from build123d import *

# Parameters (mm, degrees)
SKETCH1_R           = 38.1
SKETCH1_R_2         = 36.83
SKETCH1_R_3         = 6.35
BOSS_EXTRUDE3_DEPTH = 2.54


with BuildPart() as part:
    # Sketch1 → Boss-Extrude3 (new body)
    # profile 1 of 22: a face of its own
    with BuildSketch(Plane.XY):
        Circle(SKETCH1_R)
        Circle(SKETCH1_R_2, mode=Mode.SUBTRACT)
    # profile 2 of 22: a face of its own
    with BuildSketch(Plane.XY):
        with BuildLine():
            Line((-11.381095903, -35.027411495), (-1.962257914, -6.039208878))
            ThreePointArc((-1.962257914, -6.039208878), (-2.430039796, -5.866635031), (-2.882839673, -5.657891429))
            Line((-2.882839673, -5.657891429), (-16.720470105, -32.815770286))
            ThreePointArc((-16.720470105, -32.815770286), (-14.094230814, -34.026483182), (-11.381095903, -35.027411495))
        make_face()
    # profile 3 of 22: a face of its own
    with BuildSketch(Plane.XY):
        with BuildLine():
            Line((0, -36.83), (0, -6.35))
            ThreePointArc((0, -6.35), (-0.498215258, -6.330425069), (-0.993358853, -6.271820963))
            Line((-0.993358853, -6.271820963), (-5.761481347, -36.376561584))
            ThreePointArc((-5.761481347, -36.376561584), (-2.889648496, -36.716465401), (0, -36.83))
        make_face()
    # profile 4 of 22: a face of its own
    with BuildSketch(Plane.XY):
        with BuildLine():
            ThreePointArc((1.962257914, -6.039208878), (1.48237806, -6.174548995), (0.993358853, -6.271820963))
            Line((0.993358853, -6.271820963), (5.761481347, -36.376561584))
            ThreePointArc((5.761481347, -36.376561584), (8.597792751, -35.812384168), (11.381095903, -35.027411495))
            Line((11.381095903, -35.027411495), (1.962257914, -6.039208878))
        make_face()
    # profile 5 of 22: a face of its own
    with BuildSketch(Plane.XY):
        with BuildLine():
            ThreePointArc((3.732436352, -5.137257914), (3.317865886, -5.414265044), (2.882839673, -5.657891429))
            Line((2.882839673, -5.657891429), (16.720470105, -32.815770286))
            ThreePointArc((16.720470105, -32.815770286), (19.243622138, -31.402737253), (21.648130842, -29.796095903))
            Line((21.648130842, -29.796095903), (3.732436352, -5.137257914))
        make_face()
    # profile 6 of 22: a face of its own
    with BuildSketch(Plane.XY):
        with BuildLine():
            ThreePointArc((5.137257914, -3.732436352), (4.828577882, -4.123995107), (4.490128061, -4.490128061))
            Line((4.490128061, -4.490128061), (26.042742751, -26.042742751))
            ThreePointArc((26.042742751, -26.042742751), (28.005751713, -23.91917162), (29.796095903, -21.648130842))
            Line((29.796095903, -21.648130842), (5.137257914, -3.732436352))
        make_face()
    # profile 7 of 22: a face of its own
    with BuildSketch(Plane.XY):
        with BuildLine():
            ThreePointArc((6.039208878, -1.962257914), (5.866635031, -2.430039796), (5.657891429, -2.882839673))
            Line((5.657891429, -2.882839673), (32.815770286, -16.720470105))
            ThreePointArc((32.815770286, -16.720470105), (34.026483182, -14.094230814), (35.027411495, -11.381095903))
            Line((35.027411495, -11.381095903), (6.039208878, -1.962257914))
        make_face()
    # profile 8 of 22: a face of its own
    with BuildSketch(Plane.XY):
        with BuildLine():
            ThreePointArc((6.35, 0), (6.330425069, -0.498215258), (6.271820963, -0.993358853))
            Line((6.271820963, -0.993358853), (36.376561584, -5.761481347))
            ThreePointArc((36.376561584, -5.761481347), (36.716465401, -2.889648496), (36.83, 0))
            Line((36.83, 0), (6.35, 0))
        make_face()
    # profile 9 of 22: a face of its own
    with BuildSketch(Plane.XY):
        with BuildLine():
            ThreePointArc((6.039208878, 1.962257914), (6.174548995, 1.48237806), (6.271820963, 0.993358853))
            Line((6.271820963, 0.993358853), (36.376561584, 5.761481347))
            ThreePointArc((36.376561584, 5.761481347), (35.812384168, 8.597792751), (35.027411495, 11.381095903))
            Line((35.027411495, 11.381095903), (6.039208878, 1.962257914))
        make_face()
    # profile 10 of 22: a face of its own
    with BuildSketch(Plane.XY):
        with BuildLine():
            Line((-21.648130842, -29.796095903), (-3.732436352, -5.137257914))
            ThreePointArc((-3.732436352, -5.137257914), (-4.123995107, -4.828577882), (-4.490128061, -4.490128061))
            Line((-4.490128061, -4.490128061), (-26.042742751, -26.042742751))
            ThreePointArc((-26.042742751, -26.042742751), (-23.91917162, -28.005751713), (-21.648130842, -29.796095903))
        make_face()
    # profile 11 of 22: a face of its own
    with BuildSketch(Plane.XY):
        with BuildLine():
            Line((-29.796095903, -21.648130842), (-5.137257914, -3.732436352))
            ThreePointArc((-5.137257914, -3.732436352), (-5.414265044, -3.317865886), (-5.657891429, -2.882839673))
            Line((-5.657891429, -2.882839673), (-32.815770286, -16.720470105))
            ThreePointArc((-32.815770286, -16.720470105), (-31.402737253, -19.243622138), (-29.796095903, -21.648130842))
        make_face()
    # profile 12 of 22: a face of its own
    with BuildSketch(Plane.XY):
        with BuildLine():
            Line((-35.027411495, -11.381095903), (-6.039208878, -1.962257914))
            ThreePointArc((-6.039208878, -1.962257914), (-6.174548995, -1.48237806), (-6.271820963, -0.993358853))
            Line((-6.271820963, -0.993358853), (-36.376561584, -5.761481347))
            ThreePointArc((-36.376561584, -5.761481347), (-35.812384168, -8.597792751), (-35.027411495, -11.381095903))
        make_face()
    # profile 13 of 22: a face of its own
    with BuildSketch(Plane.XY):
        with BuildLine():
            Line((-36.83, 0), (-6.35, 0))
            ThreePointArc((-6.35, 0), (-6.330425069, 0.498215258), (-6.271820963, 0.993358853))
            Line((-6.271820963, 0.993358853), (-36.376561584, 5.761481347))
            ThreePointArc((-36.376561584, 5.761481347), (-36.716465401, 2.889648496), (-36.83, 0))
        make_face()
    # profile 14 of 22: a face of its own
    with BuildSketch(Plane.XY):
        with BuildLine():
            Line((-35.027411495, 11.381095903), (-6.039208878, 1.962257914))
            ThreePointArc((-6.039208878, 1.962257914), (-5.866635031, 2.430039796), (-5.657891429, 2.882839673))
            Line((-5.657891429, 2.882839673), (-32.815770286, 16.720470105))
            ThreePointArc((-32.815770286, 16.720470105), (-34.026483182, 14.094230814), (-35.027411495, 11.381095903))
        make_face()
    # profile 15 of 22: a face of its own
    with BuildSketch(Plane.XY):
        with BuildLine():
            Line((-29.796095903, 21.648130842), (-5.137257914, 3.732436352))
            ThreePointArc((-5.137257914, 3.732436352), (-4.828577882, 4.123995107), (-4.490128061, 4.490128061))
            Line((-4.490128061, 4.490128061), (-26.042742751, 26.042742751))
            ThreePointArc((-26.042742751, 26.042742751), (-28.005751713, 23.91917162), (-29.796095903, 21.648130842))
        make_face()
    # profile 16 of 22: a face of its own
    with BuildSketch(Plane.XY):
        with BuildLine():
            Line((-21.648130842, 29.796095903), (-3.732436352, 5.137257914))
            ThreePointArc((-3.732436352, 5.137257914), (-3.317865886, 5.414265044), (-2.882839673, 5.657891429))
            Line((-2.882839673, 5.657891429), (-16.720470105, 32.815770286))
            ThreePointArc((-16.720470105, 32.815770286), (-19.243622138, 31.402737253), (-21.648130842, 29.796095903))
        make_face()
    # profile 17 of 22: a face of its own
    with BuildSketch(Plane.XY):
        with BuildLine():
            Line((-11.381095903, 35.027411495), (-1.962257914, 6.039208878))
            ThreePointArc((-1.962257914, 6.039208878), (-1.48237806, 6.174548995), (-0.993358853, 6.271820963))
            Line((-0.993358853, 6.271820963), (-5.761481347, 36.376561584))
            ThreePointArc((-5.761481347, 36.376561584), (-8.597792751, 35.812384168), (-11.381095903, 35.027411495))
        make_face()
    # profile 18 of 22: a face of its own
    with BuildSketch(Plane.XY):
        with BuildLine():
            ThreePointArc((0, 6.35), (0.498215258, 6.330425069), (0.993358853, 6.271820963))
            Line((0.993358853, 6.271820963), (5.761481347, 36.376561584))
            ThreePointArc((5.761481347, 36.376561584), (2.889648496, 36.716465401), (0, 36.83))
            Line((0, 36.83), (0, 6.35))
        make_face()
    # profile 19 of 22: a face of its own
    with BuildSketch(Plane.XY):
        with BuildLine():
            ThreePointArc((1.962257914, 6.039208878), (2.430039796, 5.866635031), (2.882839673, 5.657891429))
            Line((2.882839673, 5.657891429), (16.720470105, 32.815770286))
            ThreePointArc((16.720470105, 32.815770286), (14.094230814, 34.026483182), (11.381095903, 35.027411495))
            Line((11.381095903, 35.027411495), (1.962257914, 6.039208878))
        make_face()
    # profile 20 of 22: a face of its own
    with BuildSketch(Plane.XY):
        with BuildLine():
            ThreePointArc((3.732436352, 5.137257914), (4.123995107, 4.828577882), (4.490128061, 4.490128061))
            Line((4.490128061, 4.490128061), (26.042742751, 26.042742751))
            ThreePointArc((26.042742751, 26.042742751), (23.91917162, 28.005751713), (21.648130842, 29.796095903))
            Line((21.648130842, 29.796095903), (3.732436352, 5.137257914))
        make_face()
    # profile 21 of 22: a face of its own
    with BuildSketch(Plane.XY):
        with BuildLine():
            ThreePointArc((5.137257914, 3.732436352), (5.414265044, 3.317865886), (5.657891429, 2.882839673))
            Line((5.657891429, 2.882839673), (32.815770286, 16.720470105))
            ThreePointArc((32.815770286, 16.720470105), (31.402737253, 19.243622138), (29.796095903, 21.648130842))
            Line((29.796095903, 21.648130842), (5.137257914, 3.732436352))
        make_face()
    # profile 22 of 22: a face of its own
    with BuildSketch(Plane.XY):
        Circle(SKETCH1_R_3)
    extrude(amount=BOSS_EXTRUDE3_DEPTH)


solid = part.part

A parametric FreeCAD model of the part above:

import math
import FreeCAD as App
import Part
import Sketcher

V = App.Vector
Q = App.Units.Quantity

doc = App.newDocument("Part")
body = doc.addObject("PartDesign::Body", "Body")

# Sketch on XY plane
sketch1 = body.newObject("Sketcher::SketchObject", "Sketch")
sketch1.AttachmentSupport = (doc.getObject("XY_Plane"), [""])
sketch1.MapMode = "FlatFace"
sketch1.addGeometry([
    Part.Circle(V(0, 0, 0), V(0, 0, 1), 38.1),  # 0
    Part.ArcOfCircle(Part.Circle(V(0, 0, 0), V(0, 0, 1), 36.8), math.radians(0), math.radians(9)),  # 1
    Part.LineSegment(V(36.8, 0, 0), V(6.3, 0, 0)),  # 2
    Part.ArcOfCircle(Part.Circle(V(0, 0, 0), V(0, 0, 1), 6.3), math.radians(0), math.radians(9)),  # 3
    Part.LineSegment(V(6.3, 1, 0), V(36.4, 5.8, 0)),  # 4
    Part.ArcOfCircle(Part.Circle(V(0, 0, 0), V(0, 0, 1), 36.8), math.radians(18), math.radians(27)),  # 5
    Part.LineSegment(V(35, 11.4, 0), V(6, 2, 0)),  # 6
    Part.ArcOfCircle(Part.Circle(V(0, 0, 0), V(0, 0, 1), 6.3), math.radians(18), math.radians(27)),  # 7
    Part.LineSegment(V(5.7, 2.9, 0), V(32.8, 16.7, 0)),  # 8
    Part.ArcOfCircle(Part.Circle(V(0, 0, 0), V(0, 0, 1), 36.8), math.radians(36), math.radians(45)),  # 9
    Part.LineSegment(V(29.8, 21.6, 0), V(5.1, 3.7, 0)),  # 10
    Part.ArcOfCircle(Part.Circle(V(0, 0, 0), V(0, 0, 1), 6.3), math.radians(36), math.radians(45)),  # 11
    Part.LineSegment(V(4.5, 4.5, 0), V(26, 26, 0)),  # 12
    Part.ArcOfCircle(Part.Circle(V(0, 0, 0), V(0, 0, 1), 36.8), math.radians(54), math.radians(63)),  # 13
    Part.LineSegment(V(21.6, 29.8, 0), V(3.7, 5.1, 0)),  # 14
    Part.ArcOfCircle(Part.Circle(V(0, 0, 0), V(0, 0, 1), 6.3), math.radians(54), math.radians(63)),  # 15
    Part.LineSegment(V(2.9, 5.7, 0), V(16.7, 32.8, 0)),  # 16
    Part.ArcOfCircle(Part.Circle(V(0, 0, 0), V(0, 0, 1), 36.8), math.radians(72), math.radians(81)),  # 17
    Part.LineSegment(V(11.4, 35, 0), V(2, 6, 0)),  # 18
    Part.ArcOfCircle(Part.Circle(V(0, 0, 0), V(0, 0, 1), 6.3), math.radians(72), math.radians(81)),  # 19
    Part.LineSegment(V(1, 6.3, 0), V(5.8, 36.4, 0)),  # 20
    Part.ArcOfCircle(Part.Circle(V(0, 0, 0), V(0, 0, 1), 36.8), math.radians(90), math.radians(99)),  # 21
    Part.LineSegment(V(0, 36.8, 0), V(0, 6.3, 0)),  # 22
    Part.ArcOfCircle(Part.Circle(V(0, 0, 0), V(0, 0, 1), 6.3), math.radians(90), math.radians(99)),  # 23
    Part.LineSegment(V(-1, 6.3, 0), V(-5.8, 36.4, 0)),  # 24
    Part.ArcOfCircle(Part.Circle(V(0, 0, 0), V(0, 0, 1), 36.8), math.radians(108), math.radians(117)),  # 25
    Part.LineSegment(V(-11.4, 35, 0), V(-2, 6, 0)),  # 26
    Part.ArcOfCircle(Part.Circle(V(0, 0, 0), V(0, 0, 1), 6.3), math.radians(108), math.radians(117)),  # 27
    Part.LineSegment(V(-2.9, 5.7, 0), V(-16.7, 32.8, 0)),  # 28
    Part.ArcOfCircle(Part.Circle(V(0, 0, 0), V(0, 0, 1), 36.8), math.radians(126), math.radians(135)),  # 29
    Part.LineSegment(V(-21.6, 29.8, 0), V(-3.7, 5.1, 0)),  # 30
    Part.ArcOfCircle(Part.Circle(V(0, 0, 0), V(0, 0, 1), 6.3), math.radians(126), math.radians(135)),  # 31
    Part.LineSegment(V(-4.5, 4.5, 0), V(-26, 26, 0)),  # 32
    Part.ArcOfCircle(Part.Circle(V(0, 0, 0), V(0, 0, 1), 36.8), math.radians(144), math.radians(153)),  # 33
    Part.LineSegment(V(-29.8, 21.6, 0), V(-5.1, 3.7, 0)),  # 34
    Part.ArcOfCircle(Part.Circle(V(0, 0, 0), V(0, 0, 1), 6.3), math.radians(144), math.radians(153)),  # 35
    Part.LineSegment(V(-5.7, 2.9, 0), V(-32.8, 16.7, 0)),  # 36
    Part.ArcOfCircle(Part.Circle(V(0, 0, 0), V(0, 0, 1), 36.8), math.radians(162), math.radians(171)),  # 37
    Part.LineSegment(V(-35, 11.4, 0), V(-6, 2, 0)),  # 38
    Part.ArcOfCircle(Part.Circle(V(0, 0, 0), V(0, 0, 1), 6.3), math.radians(162), math.radians(171)),  # 39
    Part.LineSegment(V(-6.3, 1, 0), V(-36.4, 5.8, 0)),  # 40
    Part.ArcOfCircle(Part.Circle(V(0, 0, 0), V(0, 0, 1), 36.8), math.radians(180), math.radians(189)),  # 41
    Part.LineSegment(V(-36.8, 0, 0), V(-6.3, 0, 0)),  # 42
    Part.ArcOfCircle(Part.Circle(V(0, 0, 0), V(0, 0, 1), 6.3), math.radians(180), math.radians(189)),  # 43
    Part.LineSegment(V(-6.3, -1, 0), V(-36.4, -5.8, 0)),  # 44
    Part.ArcOfCircle(Part.Circle(V(0, 0, 0), V(0, 0, 1), 36.8), math.radians(-162), math.radians(-153)),  # 45
    Part.LineSegment(V(-35, -11.4, 0), V(-6, -2, 0)),  # 46
    Part.ArcOfCircle(Part.Circle(V(0, 0, 0), V(0, 0, 1), 6.3), math.radians(-162), math.radians(-153)),  # 47
    Part.LineSegment(V(-5.7, -2.9, 0), V(-32.8, -16.7, 0)),  # 48
    Part.ArcOfCircle(Part.Circle(V(0, 0, 0), V(0, 0, 1), 36.8), math.radians(-144), math.radians(-135)),  # 49
    Part.LineSegment(V(-29.8, -21.6, 0), V(-5.1, -3.7, 0)),  # 50
    Part.ArcOfCircle(Part.Circle(V(0, 0, 0), V(0, 0, 1), 6.3), math.radians(-144), math.radians(-135)),  # 51
    Part.LineSegment(V(-4.5, -4.5, 0), V(-26, -26, 0)),  # 52
    Part.ArcOfCircle(Part.Circle(V(0, 0, 0), V(0, 0, 1), 36.8), math.radians(-126), math.radians(-117)),  # 53
    Part.LineSegment(V(-21.6, -29.8, 0), V(-3.7, -5.1, 0)),  # 54
    Part.ArcOfCircle(Part.Circle(V(0, 0, 0), V(0, 0, 1), 6.3), math.radians(-126), math.radians(-117)),  # 55
    Part.LineSegment(V(-2.9, -5.7, 0), V(-16.7, -32.8, 0)),  # 56
    Part.ArcOfCircle(Part.Circle(V(0, 0, 0), V(0, 0, 1), 36.8), math.radians(-108), math.radians(-99)),  # 57
    Part.LineSegment(V(-11.4, -35, 0), V(-2, -6, 0)),  # 58
    Part.ArcOfCircle(Part.Circle(V(0, 0, 0), V(0, 0, 1), 6.3), math.radians(-108), math.radians(-99)),  # 59
    Part.LineSegment(V(-1, -6.3, 0), V(-5.8, -36.4, 0)),  # 60
    Part.ArcOfCircle(Part.Circle(V(0, 0, 0), V(0, 0, 1), 36.8), math.radians(-90), math.radians(-81)),  # 61
    Part.LineSegment(V(0, -36.8, 0), V(0, -6.3, 0)),  # 62
    Part.ArcOfCircle(Part.Circle(V(0, 0, 0), V(0, 0, 1), 6.3), math.radians(-90), math.radians(-81)),  # 63
    Part.LineSegment(V(1, -6.3, 0), V(5.8, -36.4, 0)),  # 64
    Part.ArcOfCircle(Part.Circle(V(0, 0, 0), V(0, 0, 1), 36.8), math.radians(-72), math.radians(-63)),  # 65
    Part.LineSegment(V(11.4, -35, 0), V(2, -6, 0)),  # 66
    Part.ArcOfCircle(Part.Circle(V(0, 0, 0), V(0, 0, 1), 6.3), math.radians(-72), math.radians(-63)),  # 67
    Part.LineSegment(V(2.9, -5.7, 0), V(16.7, -32.8, 0)),  # 68
    Part.ArcOfCircle(Part.Circle(V(0, 0, 0), V(0, 0, 1), 36.8), math.radians(-54), math.radians(-45)),  # 69
    Part.LineSegment(V(21.6, -29.8, 0), V(3.7, -5.1, 0)),  # 70
    Part.ArcOfCircle(Part.Circle(V(0, 0, 0), V(0, 0, 1), 6.3), math.radians(-54), math.radians(-45)),  # 71
    Part.LineSegment(V(4.5, -4.5, 0), V(26, -26, 0)),  # 72
    Part.ArcOfCircle(Part.Circle(V(0, 0, 0), V(0, 0, 1), 36.8), math.radians(-36), math.radians(-27)),  # 73
    Part.LineSegment(V(29.8, -21.6, 0), V(5.1, -3.7, 0)),  # 74
    Part.ArcOfCircle(Part.Circle(V(0, 0, 0), V(0, 0, 1), 6.3), math.radians(-36), math.radians(-27)),  # 75
    Part.LineSegment(V(5.7, -2.9, 0), V(32.8, -16.7, 0)),  # 76
    Part.ArcOfCircle(Part.Circle(V(0, 0, 0), V(0, 0, 1), 36.8), math.radians(-18), math.radians(-9)),  # 77
    Part.LineSegment(V(35, -11.4, 0), V(6, -2, 0)),  # 78
    Part.ArcOfCircle(Part.Circle(V(0, 0, 0), V(0, 0, 1), 6.3), math.radians(-18), math.radians(-9)),  # 79
    Part.LineSegment(V(6.3, -1, 0), V(36.4, -5.8, 0)),  # 80
], False)
sketch1.addConstraint([
    Sketcher.Constraint("Coincident", 1, 1, 2, 1),
    Sketcher.Constraint("Coincident", 2, 2, 3, 1),
    Sketcher.Constraint("Coincident", 3, 2, 4, 1),
    Sketcher.Constraint("Coincident", 4, 2, 1, 2),
    Sketcher.Constraint("Coincident", 5, 1, 6, 1),
    Sketcher.Constraint("Coincident", 6, 2, 7, 1),
    Sketcher.Constraint("Coincident", 7, 2, 8, 1),
    Sketcher.Constraint("Coincident", 8, 2, 5, 2),
    Sketcher.Constraint("Coincident", 9, 1, 10, 1),
    Sketcher.Constraint("Coincident", 10, 2, 11, 1),
    Sketcher.Constraint("Coincident", 11, 2, 12, 1),
    Sketcher.Constraint("Coincident", 12, 2, 9, 2),
    Sketcher.Constraint("Coincident", 13, 1, 14, 1),
    Sketcher.Constraint("Coincident", 14, 2, 15, 1),
    Sketcher.Constraint("Coincident", 15, 2, 16, 1),
    Sketcher.Constraint("Coincident", 16, 2, 13, 2),
    Sketcher.Constraint("Coincident", 17, 1, 18, 1),
    Sketcher.Constraint("Coincident", 18, 2, 19, 1),
    Sketcher.Constraint("Coincident", 19, 2, 20, 1),
    Sketcher.Constraint("Coincident", 20, 2, 17, 2),
    Sketcher.Constraint("Coincident", 21, 1, 22, 1),
    Sketcher.Constraint("Coincident", 22, 2, 23, 1),
    Sketcher.Constraint("Coincident", 23, 2, 24, 1),
    Sketcher.Constraint("Coincident", 24, 2, 21, 2),
    Sketcher.Constraint("Coincident", 25, 1, 26, 1),
    Sketcher.Constraint("Coincident", 26, 2, 27, 1),
    Sketcher.Constraint("Coincident", 27, 2, 28, 1),
    Sketcher.Constraint("Coincident", 28, 2, 25, 2),
    Sketcher.Constraint("Coincident", 29, 1, 30, 1),
    Sketcher.Constraint("Coincident", 30, 2, 31, 1),
    Sketcher.Constraint("Coincident", 31, 2, 32, 1),
    Sketcher.Constraint("Coincident", 32, 2, 29, 2),
    Sketcher.Constraint("Coincident", 33, 1, 34, 1),
    Sketcher.Constraint("Coincident", 34, 2, 35, 1),
    Sketcher.Constraint("Coincident", 35, 2, 36, 1),
    Sketcher.Constraint("Coincident", 36, 2, 33, 2),
    Sketcher.Constraint("Coincident", 37, 1, 38, 1),
    Sketcher.Constraint("Coincident", 38, 2, 39, 1),
    Sketcher.Constraint("Coincident", 39, 2, 40, 1),
    Sketcher.Constraint("Coincident", 40, 2, 37, 2),
    Sketcher.Constraint("Coincident", 41, 1, 42, 1),
    Sketcher.Constraint("Coincident", 42, 2, 43, 1),
    Sketcher.Constraint("Coincident", 43, 2, 44, 1),
    Sketcher.Constraint("Coincident", 44, 2, 41, 2),
    Sketcher.Constraint("Coincident", 45, 1, 46, 1),
    Sketcher.Constraint("Coincident", 46, 2, 47, 1),
    Sketcher.Constraint("Coincident", 47, 2, 48, 1),
    Sketcher.Constraint("Coincident", 48, 2, 45, 2),
    Sketcher.Constraint("Coincident", 49, 1, 50, 1),
    Sketcher.Constraint("Coincident", 50, 2, 51, 1),
    Sketcher.Constraint("Coincident", 51, 2, 52, 1),
    Sketcher.Constraint("Coincident", 52, 2, 49, 2),
    Sketcher.Constraint("Coincident", 53, 1, 54, 1),
    Sketcher.Constraint("Coincident", 54, 2, 55, 1),
    Sketcher.Constraint("Coincident", 55, 2, 56, 1),
    Sketcher.Constraint("Coincident", 56, 2, 53, 2),
    Sketcher.Constraint("Coincident", 57, 1, 58, 1),
    Sketcher.Constraint("Coincident", 58, 2, 59, 1),
    Sketcher.Constraint("Coincident", 59, 2, 60, 1),
    Sketcher.Constraint("Coincident", 60, 2, 57, 2),
    Sketcher.Constraint("Coincident", 61, 1, 62, 1),
    Sketcher.Constraint("Coincident", 62, 2, 63, 1),
    Sketcher.Constraint("Coincident", 63, 2, 64, 1),
    Sketcher.Constraint("Coincident", 64, 2, 61, 2),
    Sketcher.Constraint("Coincident", 65, 1, 66, 1),
    Sketcher.Constraint("Coincident", 66, 2, 67, 1),
    Sketcher.Constraint("Coincident", 67, 2, 68, 1),
    Sketcher.Constraint("Coincident", 68, 2, 65, 2),
    Sketcher.Constraint("Coincident", 69, 1, 70, 1),
    Sketcher.Constraint("Coincident", 70, 2, 71, 1),
    Sketcher.Constraint("Coincident", 71, 2, 72, 1),
    Sketcher.Constraint("Coincident", 72, 2, 69, 2),
    Sketcher.Constraint("Coincident", 73, 1, 74, 1),
    Sketcher.Constraint("Coincident", 74, 2, 75, 1),
    Sketcher.Constraint("Coincident", 75, 2, 76, 1),
    Sketcher.Constraint("Coincident", 76, 2, 73, 2),
    Sketcher.Constraint("Coincident", 77, 1, 78, 1),
    Sketcher.Constraint("Coincident", 78, 2, 79, 1),
    Sketcher.Constraint("Coincident", 79, 2, 80, 1),
    Sketcher.Constraint("Coincident", 80, 2, 77, 2),
    Sketcher.Constraint("Horizontal", 2),
    Sketcher.Constraint("Vertical", 22),
    Sketcher.Constraint("Horizontal", 42),
    Sketcher.Constraint("Vertical", 62),
    Sketcher.Constraint("Coincident", 0, 3, -1, 1),
    Sketcher.Constraint("Coincident", 1, 3, -1, 1),
    Sketcher.Constraint("Coincident", 3, 3, -1, 1),
    Sketcher.Constraint("Coincident", 5, 3, -1, 1),
    Sketcher.Constraint("Coincident", 7, 3, -1, 1),
    Sketcher.Constraint("Coincident", 9, 3, -1, 1),
    Sketcher.Constraint("Coincident", 11, 3, -1, 1),
    Sketcher.Constraint("Coincident", 13, 3, -1, 1),
    Sketcher.Constraint("Coincident", 15, 3, -1, 1),
    Sketcher.Constraint("Coincident", 17, 3, -1, 1),
    Sketcher.Constraint("Coincident", 19, 3, -1, 1),
    Sketcher.Constraint("Coincident", 21, 3, -1, 1),
    Sketcher.Constraint("Coincident", 23, 3, -1, 1),
    Sketcher.Constraint("Coincident", 25, 3, -1, 1),
    Sketcher.Constraint("Coincident", 27, 3, -1, 1),
    Sketcher.Constraint("Coincident", 29, 3, -1, 1),
    Sketcher.Constraint("Coincident", 31, 3, -1, 1),
    Sketcher.Constraint("Coincident", 33, 3, -1, 1),
    Sketcher.Constraint("Coincident", 35, 3, -1, 1),
    Sketcher.Constraint("Coincident", 37, 3, -1, 1),
    Sketcher.Constraint("Coincident", 39, 3, -1, 1),
    Sketcher.Constraint("Coincident", 41, 3, -1, 1),
    Sketcher.Constraint("Coincident", 43, 3, -1, 1),
    Sketcher.Constraint("Coincident", 45, 3, -1, 1),
    Sketcher.Constraint("Coincident", 47, 3, -1, 1),
    Sketcher.Constraint("Coincident", 49, 3, -1, 1),
    Sketcher.Constraint("Coincident", 51, 3, -1, 1),
    Sketcher.Constraint("Coincident", 53, 3, -1, 1),
    Sketcher.Constraint("Coincident", 55, 3, -1, 1),
    Sketcher.Constraint("Coincident", 57, 3, -1, 1),
    Sketcher.Constraint("Coincident", 59, 3, -1, 1),
    Sketcher.Constraint("Coincident", 61, 3, -1, 1),
    Sketcher.Constraint("Coincident", 63, 3, -1, 1),
    Sketcher.Constraint("Coincident", 65, 3, -1, 1),
    Sketcher.Constraint("Coincident", 67, 3, -1, 1),
    Sketcher.Constraint("Coincident", 69, 3, -1, 1),
    Sketcher.Constraint("Coincident", 71, 3, -1, 1),
    Sketcher.Constraint("Coincident", 73, 3, -1, 1),
    Sketcher.Constraint("Coincident", 75, 3, -1, 1),
    Sketcher.Constraint("Coincident", 77, 3, -1, 1),
    Sketcher.Constraint("Coincident", 79, 3, -1, 1),
    Sketcher.Constraint("Equal", 1, 5),
    Sketcher.Constraint("Equal", 3, 7),
    Sketcher.Constraint("Equal", 5, 9),
    Sketcher.Constraint("Equal", 7, 11),
    Sketcher.Constraint("Equal", 9, 13),
    Sketcher.Constraint("Equal", 11, 15),
    Sketcher.Constraint("Equal", 13, 17),
    Sketcher.Constraint("Equal", 15, 19),
    Sketcher.Constraint("Equal", 17, 21),
    Sketcher.Constraint("Equal", 19, 23),
    Sketcher.Constraint("Equal", 21, 25),
    Sketcher.Constraint("Equal", 23, 27),
    Sketcher.Constraint("Equal", 25, 29),
    Sketcher.Constraint("Equal", 27, 31),
    Sketcher.Constraint("Equal", 29, 33),
    Sketcher.Constraint("Equal", 31, 35),
    Sketcher.Constraint("Equal", 33, 37),
    Sketcher.Constraint("Equal", 35, 39),
    Sketcher.Constraint("Equal", 37, 41),
    Sketcher.Constraint("Equal", 39, 43),
    Sketcher.Constraint("Equal", 41, 45),
    Sketcher.Constraint("Equal", 43, 47),
    Sketcher.Constraint("Equal", 45, 49),
    Sketcher.Constraint("Equal", 47, 51),
    Sketcher.Constraint("Equal", 49, 53),
    Sketcher.Constraint("Equal", 51, 55),
    Sketcher.Constraint("Equal", 53, 57),
    Sketcher.Constraint("Equal", 55, 59),
    Sketcher.Constraint("Equal", 57, 61),
    Sketcher.Constraint("Equal", 59, 63),
    Sketcher.Constraint("Equal", 61, 65),
    Sketcher.Constraint("Equal", 63, 67),
    Sketcher.Constraint("Equal", 65, 69),
    Sketcher.Constraint("Equal", 67, 71),
    Sketcher.Constraint("Equal", 69, 73),
    Sketcher.Constraint("Equal", 71, 75),
    Sketcher.Constraint("Equal", 73, 77),
    Sketcher.Constraint("Equal", 75, 79),
    Sketcher.Constraint("PointOnObject", 1, 1, -1),
    Sketcher.Constraint("PointOnObject", 21, 1, -2),
    Sketcher.Constraint("PointOnObject", 41, 1, -1),
    Sketcher.Constraint("PointOnObject", 61, 1, -2),
    Sketcher.Constraint("Perpendicular", 4, 24),
    Sketcher.Constraint("Perpendicular", 6, 26),
    Sketcher.Constraint("Perpendicular", 8, 28),
    Sketcher.Constraint("Perpendicular", 10, 30),
    Sketcher.Constraint("Perpendicular", 12, 32),
    Sketcher.Constraint("Perpendicular", 14, 34),
    Sketcher.Constraint("Perpendicular", 16, 36),
    Sketcher.Constraint("Perpendicular", 18, 38),
    Sketcher.Constraint("Perpendicular", 20, 40),
    Sketcher.Constraint("Perpendicular", 24, 44),
    Sketcher.Constraint("Perpendicular", 26, 46),
    Sketcher.Constraint("Perpendicular", 28, 48),
    Sketcher.Constraint("Perpendicular", 30, 50),
    Sketcher.Constraint("Perpendicular", 32, 52),
    Sketcher.Constraint("Perpendicular", 34, 54),
    Sketcher.Constraint("Perpendicular", 36, 56),
    Sketcher.Constraint("Perpendicular", 38, 58),
    Sketcher.Constraint("Perpendicular", 40, 60),
    Sketcher.Constraint("Perpendicular", 44, 64),
    Sketcher.Constraint("Perpendicular", 46, 66),
    Sketcher.Constraint("Perpendicular", 48, 68),
    Sketcher.Constraint("Perpendicular", 50, 70),
    Sketcher.Constraint("Perpendicular", 52, 72),
    Sketcher.Constraint("Perpendicular", 54, 74),
    Sketcher.Constraint("Perpendicular", 56, 76),
    Sketcher.Constraint("Perpendicular", 58, 78),
    Sketcher.Constraint("Perpendicular", 60, 80),
    Sketcher.Constraint("Horizontal", 19, 2, 23, 2),
    Sketcher.Constraint("Horizontal", 20, 2, 24, 2),
    Sketcher.Constraint("Horizontal", 17, 1, 25, 1),
    Sketcher.Constraint("Horizontal", 18, 2, 26, 2),
    Sketcher.Constraint("Horizontal", 15, 2, 27, 2),
    Sketcher.Constraint("Horizontal", 16, 2, 28, 2),
    Sketcher.Constraint("Horizontal", 13, 1, 29, 1),
    Sketcher.Constraint("Horizontal", 14, 2, 30, 2),
    Sketcher.Constraint("Horizontal", 11, 2, 31, 2),
    Sketcher.Constraint("Horizontal", 12, 2, 32, 2),
    Sketcher.Constraint("Horizontal", 9, 1, 33, 1),
    Sketcher.Constraint("Horizontal", 7, 2, 35, 2),
    Sketcher.Constraint("Horizontal", 5, 1, 37, 1),
    Sketcher.Constraint("Horizontal", 3, 2, 39, 2),
    Sketcher.Constraint("Horizontal", 59, 2, 63, 2),
    Sketcher.Constraint("Horizontal", 57, 1, 65, 1),
    Sketcher.Constraint("Horizontal", 55, 2, 67, 2),
    Sketcher.Constraint("Horizontal", 53, 1, 69, 1),
    Sketcher.Constraint("Horizontal", 51, 2, 71, 2),
    Sketcher.Constraint("Horizontal", 49, 1, 73, 1),
    Sketcher.Constraint("Horizontal", 47, 2, 75, 2),
    Sketcher.Constraint("Horizontal", 45, 1, 77, 1),
    Sketcher.Constraint("Horizontal", 43, 2, 79, 2),
    Sketcher.Constraint("Vertical", 39, 2, 43, 2),
    Sketcher.Constraint("Vertical", 37, 1, 45, 1),
    Sketcher.Constraint("Vertical", 35, 2, 47, 2),
    Sketcher.Constraint("Vertical", 33, 1, 49, 1),
    Sketcher.Constraint("Vertical", 31, 2, 51, 2),
    Sketcher.Constraint("Vertical", 29, 1, 53, 1),
    Sketcher.Constraint("Vertical", 27, 2, 55, 2),
    Sketcher.Constraint("Vertical", 25, 1, 57, 1),
    Sketcher.Constraint("Vertical", 23, 2, 59, 2),
    Sketcher.Constraint("Diameter", 0, Q("3 in")),
    Sketcher.Constraint("Radius", 1, Q("1.45 in")),
    Sketcher.Constraint("Radius", 3, Q("0.25 in")),
    Sketcher.Constraint("Angle", 4, Q("9 deg")),
    Sketcher.Constraint("Angle", 6, Q("-162 deg")),
    Sketcher.Constraint("Angle", 8, Q("27 deg")),
    Sketcher.Constraint("Angle", 10, Q("-144 deg")),
    Sketcher.Constraint("DistanceX", -1, 1, 3, 2, Q("6.271821 mm")),
    Sketcher.Constraint("DistanceX", -1, 1, 5, 1, Q("35.027411 mm")),
    Sketcher.Constraint("DistanceX", -1, 1, 7, 2, Q("5.657891 mm")),
    Sketcher.Constraint("DistanceY", -1, 1, 9, 1, Q("21.648131 mm")),
    Sketcher.Constraint("DistanceX", -1, 1, 11, 2, Q("4.490128 mm")),
    Sketcher.Constraint("DistanceX", -1, 1, 13, 1, Q("21.648131 mm")),
    Sketcher.Constraint("DistanceX", -1, 1, 15, 2, Q("2.88284 mm")),
    Sketcher.Constraint("DistanceY", -1, 1, 17, 1, Q("35.027411 mm")),
    Sketcher.Constraint("DistanceX", -1, 1, 19, 2, Q("0.993359 mm")),
])
pad1 = body.newObject("PartDesign::Pad", "Pad")
pad1.Profile = sketch1
pad1.Length = Q("0.1 in")

doc.recompute()
